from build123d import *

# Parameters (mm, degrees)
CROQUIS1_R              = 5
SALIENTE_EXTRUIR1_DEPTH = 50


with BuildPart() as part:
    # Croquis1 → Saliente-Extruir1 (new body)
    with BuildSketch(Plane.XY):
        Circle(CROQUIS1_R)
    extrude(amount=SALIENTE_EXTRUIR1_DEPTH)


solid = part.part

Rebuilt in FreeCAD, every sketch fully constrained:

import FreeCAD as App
import Part
import Sketcher

V = App.Vector

doc = App.newDocument("Part")
body = doc.addObject("PartDesign::Body", "Body")

# Sketch on XY plane
sketch1 = doc.addObject("Sketcher::SketchObject", "Sketch")
body.addObject(sketch1)
sketch1.AttachmentSupport = (doc.XY_Plane, [""])
sketch1.MapMode = "FlatFace"
sketch1.addGeometry(Part.Circle(V(0, 0, 0), V(0, 0, 1), 5), False)
sketch1.addConstraint(Sketcher.Constraint("Coincident", 0, 3, -1, 1))
sketch1.addConstraint(Sketcher.Constraint("Diameter", 0, 10.0))
pad1 = doc.addObject("PartDesign::Pad", "Pad")
body.addObject(pad1)
pad1.Profile = sketch1
pad1.Length = 50

doc.recompute()
